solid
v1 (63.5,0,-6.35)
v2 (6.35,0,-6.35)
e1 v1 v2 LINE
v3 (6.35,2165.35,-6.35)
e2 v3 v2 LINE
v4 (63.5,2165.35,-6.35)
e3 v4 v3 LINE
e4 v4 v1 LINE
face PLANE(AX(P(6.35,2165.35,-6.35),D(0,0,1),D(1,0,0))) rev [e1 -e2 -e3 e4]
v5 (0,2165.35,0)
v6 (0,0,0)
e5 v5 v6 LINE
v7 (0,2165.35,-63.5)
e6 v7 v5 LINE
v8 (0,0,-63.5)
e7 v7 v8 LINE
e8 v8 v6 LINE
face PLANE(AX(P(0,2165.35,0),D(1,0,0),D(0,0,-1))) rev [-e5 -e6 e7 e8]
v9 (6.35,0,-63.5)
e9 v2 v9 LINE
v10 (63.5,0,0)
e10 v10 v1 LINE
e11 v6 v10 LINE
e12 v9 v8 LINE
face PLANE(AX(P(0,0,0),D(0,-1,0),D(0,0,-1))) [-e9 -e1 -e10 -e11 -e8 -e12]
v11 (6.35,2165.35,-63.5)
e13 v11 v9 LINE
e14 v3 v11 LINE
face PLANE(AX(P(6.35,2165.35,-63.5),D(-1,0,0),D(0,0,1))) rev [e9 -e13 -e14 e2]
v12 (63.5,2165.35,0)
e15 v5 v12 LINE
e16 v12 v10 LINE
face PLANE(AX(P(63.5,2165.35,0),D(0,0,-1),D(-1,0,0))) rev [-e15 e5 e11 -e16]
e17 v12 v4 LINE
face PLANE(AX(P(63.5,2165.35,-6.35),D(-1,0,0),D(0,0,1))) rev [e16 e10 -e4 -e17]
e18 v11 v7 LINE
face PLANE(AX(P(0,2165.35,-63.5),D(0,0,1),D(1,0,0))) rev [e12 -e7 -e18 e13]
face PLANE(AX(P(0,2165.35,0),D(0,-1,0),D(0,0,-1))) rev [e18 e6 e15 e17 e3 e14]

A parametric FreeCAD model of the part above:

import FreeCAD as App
import Part
import Sketcher

V = App.Vector
Q = App.Units.Quantity

doc = App.newDocument("Part")
params = doc.addObject("Spreadsheet::Sheet", "Params")
for row, (alias, value) in enumerate([
    ("sketch1_width", "2.5 in"),
    ("sketch1_width2", "2.25 in"),
    ("pad1_length", "85.25 in"),
], start=1):
    params.set(f"A{row}", alias)
    params.set(f"B{row}", "=" + value)
    params.setAlias(f"B{row}", alias)

body = doc.addObject("PartDesign::Body", "Body")

sketch1 = doc.addObject("Sketcher::SketchObject", "Sketch")
body.addObject(sketch1)
sketch1.AttachmentSupport = (doc.XZ_Plane, [""])
sketch1.MapMode = "FlatFace"
sketch1.addGeometry([
    Part.LineSegment(V(0, -63.5, 0), V(0, 0, 0)),
    Part.LineSegment(V(0, 0, 0), V(63.5, 0, 0)),
    Part.LineSegment(V(63.5, 0, 0), V(63.5, -6.35, 0)),
    Part.LineSegment(V(63.5, -6.35, 0), V(6.35, -6.35, 0)),
    Part.LineSegment(V(6.35, -6.35, 0), V(6.35, -63.5, 0)),
    Part.LineSegment(V(6.35, -63.5, 0), V(0, -63.5, 0)),
], False)
sketch1.addConstraint([
    Sketcher.Constraint("Coincident", 0, 2, 1, 1),
    Sketcher.Constraint("Coincident", 1, 2, 2, 1),
    Sketcher.Constraint("Coincident", 2, 2, 3, 1),
    Sketcher.Constraint("Coincident", 3, 2, 4, 1),
    Sketcher.Constraint("Coincident", 4, 2, 5, 1),
    Sketcher.Constraint("Coincident", 5, 2, 0, 1),
    Sketcher.Constraint("Vertical", 0),
    Sketcher.Constraint("Horizontal", 1),
    Sketcher.Constraint("Vertical", 2),
    Sketcher.Constraint("Horizontal", 3),
    Sketcher.Constraint("Vertical", 4),
    Sketcher.Constraint("Horizontal", 5),
    Sketcher.Constraint("Coincident", 0, 2, -1, 1),
    Sketcher.Constraint("Equal", 1, 0),
    Sketcher.Constraint("Equal", 5, 2),
    Sketcher.Constraint("DistanceX", 1, 1, 1, 2, Q("2.5 in")),
    Sketcher.Constraint("DistanceX", 3, 2, 3, 1, Q("2.25 in")),
])
sketch1.setExpression("Constraints[15]", "Params.sketch1_width")
sketch1.setExpression("Constraints[16]", "Params.sketch1_width2")
pad1 = doc.addObject("PartDesign::Pad", "Pad")
body.addObject(pad1)
pad1.Profile = sketch1
pad1.setExpression("Length", "Params.pad1_length")
pad1.Reversed = True

doc.recompute()
